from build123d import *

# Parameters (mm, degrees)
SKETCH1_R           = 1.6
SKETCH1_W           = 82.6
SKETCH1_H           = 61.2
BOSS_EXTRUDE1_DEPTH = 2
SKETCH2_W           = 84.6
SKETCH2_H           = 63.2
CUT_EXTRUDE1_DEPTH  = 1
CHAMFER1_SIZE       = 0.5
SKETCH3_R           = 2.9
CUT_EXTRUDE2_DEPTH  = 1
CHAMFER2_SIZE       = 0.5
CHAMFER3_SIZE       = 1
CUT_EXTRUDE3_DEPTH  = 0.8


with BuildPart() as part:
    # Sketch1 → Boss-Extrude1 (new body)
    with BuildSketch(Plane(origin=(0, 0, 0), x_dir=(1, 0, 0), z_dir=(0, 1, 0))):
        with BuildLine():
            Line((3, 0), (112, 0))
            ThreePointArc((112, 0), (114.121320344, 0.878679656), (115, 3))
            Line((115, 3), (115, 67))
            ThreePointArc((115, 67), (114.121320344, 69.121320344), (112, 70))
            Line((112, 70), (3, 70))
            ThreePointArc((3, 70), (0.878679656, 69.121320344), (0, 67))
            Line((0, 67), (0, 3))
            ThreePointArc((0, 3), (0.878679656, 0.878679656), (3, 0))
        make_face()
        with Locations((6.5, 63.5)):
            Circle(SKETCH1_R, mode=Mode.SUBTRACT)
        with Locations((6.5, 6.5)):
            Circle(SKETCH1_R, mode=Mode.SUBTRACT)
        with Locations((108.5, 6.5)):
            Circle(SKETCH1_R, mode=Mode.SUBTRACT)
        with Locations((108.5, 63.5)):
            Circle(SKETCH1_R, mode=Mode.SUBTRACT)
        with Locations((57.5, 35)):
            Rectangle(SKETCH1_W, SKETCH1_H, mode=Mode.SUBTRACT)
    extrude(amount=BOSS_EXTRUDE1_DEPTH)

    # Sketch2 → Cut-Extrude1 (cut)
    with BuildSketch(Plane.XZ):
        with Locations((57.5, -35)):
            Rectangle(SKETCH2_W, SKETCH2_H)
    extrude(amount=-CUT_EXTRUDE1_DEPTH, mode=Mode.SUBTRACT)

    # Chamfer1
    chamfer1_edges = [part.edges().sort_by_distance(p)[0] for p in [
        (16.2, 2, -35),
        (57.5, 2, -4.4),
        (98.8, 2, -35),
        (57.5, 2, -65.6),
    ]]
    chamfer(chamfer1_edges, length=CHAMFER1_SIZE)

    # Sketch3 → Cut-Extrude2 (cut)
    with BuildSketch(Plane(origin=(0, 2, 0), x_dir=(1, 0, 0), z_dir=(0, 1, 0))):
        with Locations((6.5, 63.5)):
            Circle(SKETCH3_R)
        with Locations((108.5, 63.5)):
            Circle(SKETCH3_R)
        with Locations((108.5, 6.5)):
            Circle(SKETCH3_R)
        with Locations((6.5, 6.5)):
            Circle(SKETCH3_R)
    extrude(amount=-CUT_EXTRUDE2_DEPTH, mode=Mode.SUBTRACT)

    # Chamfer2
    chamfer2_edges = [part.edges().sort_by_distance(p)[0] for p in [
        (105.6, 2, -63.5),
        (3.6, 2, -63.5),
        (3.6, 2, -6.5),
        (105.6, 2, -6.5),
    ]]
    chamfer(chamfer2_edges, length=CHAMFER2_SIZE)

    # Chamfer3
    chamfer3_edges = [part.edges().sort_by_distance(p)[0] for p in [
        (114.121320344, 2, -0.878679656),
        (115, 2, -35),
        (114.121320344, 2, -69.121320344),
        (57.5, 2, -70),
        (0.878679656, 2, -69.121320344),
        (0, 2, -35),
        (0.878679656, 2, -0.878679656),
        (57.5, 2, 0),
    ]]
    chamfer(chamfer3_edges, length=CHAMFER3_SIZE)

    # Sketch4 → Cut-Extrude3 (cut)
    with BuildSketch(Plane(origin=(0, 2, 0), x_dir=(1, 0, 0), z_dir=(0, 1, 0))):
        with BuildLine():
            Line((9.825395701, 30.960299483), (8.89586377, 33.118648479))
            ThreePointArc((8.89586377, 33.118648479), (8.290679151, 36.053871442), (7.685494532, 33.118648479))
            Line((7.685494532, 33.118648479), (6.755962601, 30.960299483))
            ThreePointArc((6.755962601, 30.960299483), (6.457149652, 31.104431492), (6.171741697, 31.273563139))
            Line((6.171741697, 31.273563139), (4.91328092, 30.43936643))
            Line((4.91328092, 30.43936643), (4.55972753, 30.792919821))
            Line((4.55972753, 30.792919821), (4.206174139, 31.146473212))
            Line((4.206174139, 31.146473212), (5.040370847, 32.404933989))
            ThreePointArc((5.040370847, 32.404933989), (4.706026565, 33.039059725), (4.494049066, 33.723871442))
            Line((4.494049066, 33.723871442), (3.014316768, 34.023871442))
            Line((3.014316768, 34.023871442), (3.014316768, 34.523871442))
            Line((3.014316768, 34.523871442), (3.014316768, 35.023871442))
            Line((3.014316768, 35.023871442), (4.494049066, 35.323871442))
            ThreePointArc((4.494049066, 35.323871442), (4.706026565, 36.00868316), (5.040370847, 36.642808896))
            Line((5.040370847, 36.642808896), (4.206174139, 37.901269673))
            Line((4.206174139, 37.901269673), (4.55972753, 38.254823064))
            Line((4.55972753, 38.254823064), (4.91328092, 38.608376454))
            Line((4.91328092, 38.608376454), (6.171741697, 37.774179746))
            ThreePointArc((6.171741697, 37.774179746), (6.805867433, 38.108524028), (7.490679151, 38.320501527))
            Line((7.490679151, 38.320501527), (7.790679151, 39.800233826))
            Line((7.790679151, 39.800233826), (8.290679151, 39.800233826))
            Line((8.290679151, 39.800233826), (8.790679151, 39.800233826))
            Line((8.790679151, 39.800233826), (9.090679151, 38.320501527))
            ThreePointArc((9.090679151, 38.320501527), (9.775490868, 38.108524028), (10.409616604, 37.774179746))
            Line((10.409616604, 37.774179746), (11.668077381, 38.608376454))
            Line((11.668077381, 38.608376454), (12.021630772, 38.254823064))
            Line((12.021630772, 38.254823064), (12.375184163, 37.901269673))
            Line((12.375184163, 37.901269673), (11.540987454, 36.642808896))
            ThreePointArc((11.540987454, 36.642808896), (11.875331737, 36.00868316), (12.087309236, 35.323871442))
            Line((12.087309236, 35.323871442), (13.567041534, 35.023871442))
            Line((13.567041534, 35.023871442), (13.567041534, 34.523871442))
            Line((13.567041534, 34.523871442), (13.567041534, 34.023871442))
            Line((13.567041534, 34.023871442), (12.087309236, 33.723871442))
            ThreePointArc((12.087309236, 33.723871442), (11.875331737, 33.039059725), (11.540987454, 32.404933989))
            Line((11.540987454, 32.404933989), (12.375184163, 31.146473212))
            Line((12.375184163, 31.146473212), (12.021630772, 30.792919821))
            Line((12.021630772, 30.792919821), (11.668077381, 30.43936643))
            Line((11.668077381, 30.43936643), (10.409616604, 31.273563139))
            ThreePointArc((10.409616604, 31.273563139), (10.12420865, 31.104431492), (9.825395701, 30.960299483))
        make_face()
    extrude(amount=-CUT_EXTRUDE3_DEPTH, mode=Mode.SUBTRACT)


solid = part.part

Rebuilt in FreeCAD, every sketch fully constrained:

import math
import FreeCAD as App
import Part
import Sketcher

V = App.Vector
Q = App.Units.Quantity


def edges_at(feature, points):
    """Names of the edges that pass closest to the given points."""
    edges = feature.Shape.Edges
    near = lambda p: min(range(len(edges)), key=lambda i: edges[i].distToShape(Part.Vertex(*p))[0])
    return sorted({f"Edge{near(p) + 1}" for p in points})

doc = App.newDocument("Part")
params = doc.addObject("Spreadsheet::Sheet", "Params")
for row, (alias, value) in enumerate([
    ("sketch1_radius", "3 mm"),
    ("sketch1_diameter", "3.2 mm"),
    ("sketch1_width", "109 mm"),
    ("sketch1_height", "64 mm"),
    ("sketch1_width2", "82.6 mm"),
    ("pad1_length", "2 mm"),
    ("sketch2_width", "84.6 mm"),
    ("sketch2_height", "63.2 mm"),
    ("pocket1_length", "1 mm"),
    ("chamfer_size", "0.5 mm"),
    ("sketch3_diameter", "5.8 mm"),
    ("pocket2_length", "1 mm"),
    ("chamfer2_size", "0.5 mm"),
    ("chamfer3_size", "1 mm"),
    ("sketch4_width", "1 mm"),
    ("sketch4_radius", "3.88 mm"),
    ("sketch4_radius2", "1.53 mm"),
    ("sketch4_length", "1 mm"),
    ("pocket3_length", "0.8 mm"),
], start=1):
    params.set(f"A{row}", alias)
    params.set(f"B{row}", "=" + value)
    params.setAlias(f"B{row}", alias)

body = doc.addObject("PartDesign::Body", "Body")

sketch1 = body.newObject("Sketcher::SketchObject", "Sketch")
sketch1.AttachmentSupport = (doc.getObject("XZ_Plane"), [""])
sketch1.MapMode = "FlatFace"
sketch1.addGeometry([
    Part.LineSegment(V(3, 0, 0), V(112, 0, 0)),
    Part.ArcOfCircle(Part.Circle(V(112, -3, 0), V(0, 0, 1), 3), math.radians(0), math.radians(90)),
    Part.LineSegment(V(115, -3, 0), V(115, -67, 0)),
    Part.ArcOfCircle(Part.Circle(V(112, -67, 0), V(0, 0, 1), 3), math.radians(-90), math.radians(0)),
    Part.LineSegment(V(112, -70, 0), V(3, -70, 0)),
    Part.ArcOfCircle(Part.Circle(V(3, -67, 0), V(0, 0, 1), 3), math.radians(180), math.radians(270)),
    Part.LineSegment(V(0, -67, 0), V(0, -3, 0)),
    Part.ArcOfCircle(Part.Circle(V(3, -3, 0), V(0, 0, 1), 3), math.radians(90), math.radians(180)),
    Part.Circle(V(6.5, -6.5, 0), V(0, 0, 1), 1.6),
    Part.Circle(V(108.5, -6.5, 0), V(0, 0, 1), 1.6),
    Part.Circle(V(6.5, -63.5, 0), V(0, 0, 1), 1.6),
    Part.LineSegment(V(98.8, -4.4, 0), V(16.2, -4.4, 0)),
    Part.LineSegment(V(16.2, -4.4, 0), V(16.2, -65.6, 0)),
    Part.LineSegment(V(16.2, -65.6, 0), V(98.8, -65.6, 0)),
    Part.LineSegment(V(98.8, -65.6, 0), V(98.8, -4.4, 0)),
    Part.Circle(V(108.5, -63.5, 0), V(0, 0, 1), 1.6),
], False)
sketch1.addConstraint([
    Sketcher.Constraint("Tangent", 0, 2, 1, 2),
    Sketcher.Constraint("Tangent", 1, 1, 2, 1),
    Sketcher.Constraint("Tangent", 2, 2, 3, 2),
    Sketcher.Constraint("Tangent", 3, 1, 4, 1),
    Sketcher.Constraint("Tangent", 4, 2, 5, 2),
    Sketcher.Constraint("Tangent", 5, 1, 6, 1),
    Sketcher.Constraint("Tangent", 6, 2, 7, 2),
    Sketcher.Constraint("Tangent", 7, 1, 0, 1),
    Sketcher.Constraint("Coincident", 11, 2, 12, 1),
    Sketcher.Constraint("Coincident", 12, 2, 13, 1),
    Sketcher.Constraint("Coincident", 13, 2, 14, 1),
    Sketcher.Constraint("Coincident", 14, 2, 11, 1),
    Sketcher.Constraint("Horizontal", 0),
    Sketcher.Constraint("Vertical", 2),
    Sketcher.Constraint("Horizontal", 4),
    Sketcher.Constraint("Vertical", 6),
    Sketcher.Constraint("Horizontal", 11),
    Sketcher.Constraint("Vertical", 12),
    Sketcher.Constraint("Horizontal", 13),
    Sketcher.Constraint("Vertical", 14),
    Sketcher.Constraint("Equal", 1, 3),
    Sketcher.Constraint("Equal", 3, 5),
    Sketcher.Constraint("Equal", 5, 7),
    Sketcher.Constraint("Equal", 8, 9),
    Sketcher.Constraint("Equal", 9, 10),
    Sketcher.Constraint("Equal", 10, 15),
    Sketcher.Constraint("PointOnObject", 0, 2, -1),
    Sketcher.Constraint("PointOnObject", 5, 1, -2),
    Sketcher.Constraint("Horizontal", 8, 3, 9, 3),
    Sketcher.Constraint("Horizontal", 10, 3, 15, 3),
    Sketcher.Constraint("Vertical", 8, 3, 10, 3),
    Sketcher.Constraint("Vertical", 9, 3, 15, 3),
    Sketcher.Constraint("Radius", 1, 3.0),
    Sketcher.Constraint("Diameter", 8, 3.2),
    Sketcher.Constraint("DistanceX", 0, 1, 0, 2, 109.0),
    Sketcher.Constraint("DistanceY", 2, 2, 2, 1, 64.0),
    Sketcher.Constraint("DistanceX", 11, 2, 11, 1, 82.6),
    Sketcher.Constraint("DistanceY", 12, 2, 12, 1, 61.2),
    Sketcher.Constraint("DistanceX", 8, 3, 9, 3, 102.0),
    Sketcher.Constraint("DistanceY", 10, 3, 8, 3, 57.0),
    Sketcher.Constraint("DistanceX", -1, 1, 8, 3, 6.5),
    Sketcher.Constraint("DistanceY", 8, 3, -1, 1, 6.5),
    Sketcher.Constraint("DistanceX", -1, 1, 11, 2, 16.2),
    Sketcher.Constraint("DistanceY", 11, 2, -1, 1, 4.4),
])
sketch1.setExpression("Constraints[32]", "Params.sketch1_radius")
sketch1.setExpression("Constraints[33]", "Params.sketch1_diameter")
sketch1.setExpression("Constraints[34]", "Params.sketch1_width")
sketch1.setExpression("Constraints[35]", "Params.sketch1_height")
sketch1.setExpression("Constraints[36]", "Params.sketch1_width2")
pad1 = body.newObject("PartDesign::Pad", "Pad")
pad1.Profile = sketch1
pad1.setExpression("Length", "Params.pad1_length")
pad1.Reversed = True

sketch2 = body.newObject("Sketcher::SketchObject", "Sketch001")
sketch2.AttachmentSupport = (doc.getObject("XZ_Plane"), [""])
sketch2.MapMode = "FlatFace"
sketch2.addGeometry([
    Part.LineSegment(V(15, -3, 0), V(15, -67, 0)),
    Part.LineSegment(V(15, -67, 0), V(100, -67, 0)),
    Part.LineSegment(V(100, -67, 0), V(100, -3, 0)),
    Part.LineSegment(V(100, -3, 0), V(15, -3, 0)),
], False)
sketch2.addConstraint([
    Sketcher.Constraint("Coincident", 0, 2, 1, 1),
    Sketcher.Constraint("Coincident", 1, 2, 2, 1),
    Sketcher.Constraint("Coincident", 2, 2, 3, 1),
    Sketcher.Constraint("Coincident", 3, 2, 0, 1),
    Sketcher.Constraint("Vertical", 0),
    Sketcher.Constraint("Horizontal", 1),
    Sketcher.Constraint("Vertical", 2),
    Sketcher.Constraint("Horizontal", 3),
    Sketcher.Constraint("DistanceX", 1, 1, 1, 2, 84.6),
    Sketcher.Constraint("DistanceY", 0, 2, 0, 1, 63.2),
    Sketcher.Constraint("DistanceX", -1, 1, 0, 2, 15.2),
    Sketcher.Constraint("DistanceY", 0, 2, -1, 1, 66.6),
])
sketch2.setExpression("Constraints[8]", "Params.sketch2_width")
sketch2.setExpression("Constraints[9]", "Params.sketch2_height")
pocket1 = body.newObject("PartDesign::Pocket", "Pocket")
pocket1.Profile = sketch2
pocket1.setExpression("Length", "Params.pocket1_length")
doc.recompute()

chamfer = body.newObject("PartDesign::Chamfer", "Chamfer")
chamfer.Base = (pocket1, edges_at(pocket1, [
    (16.2, 2, -35),
    (57.5, 2, -4.4),
    (98.8, 2, -35),
    (57.5, 2, -65.6),
]))
chamfer.setExpression("Size", "Params.chamfer_size")

sketch3 = body.newObject("Sketcher::SketchObject", "Sketch002")
sketch3.AttachmentSupport = (doc.getObject("XZ_Plane"), [""])
sketch3.MapMode = "FlatFace"
sketch3.AttachmentOffset = App.Placement(V(0, 0, -2), App.Rotation())
sketch3.addGeometry([
    Part.Circle(V(6.5, -63.5, 0), V(0, 0, 1), 2.9),
    Part.Circle(V(108.5, -63.5, 0), V(0, 0, 1), 2.9),
    Part.Circle(V(108.5, -6.5, 0), V(0, 0, 1), 2.9),
    Part.Circle(V(6.5, -6.5, 0), V(0, 0, 1), 2.9),
], False)
sketch3.addConstraint([
    Sketcher.Constraint("Equal", 0, 1),
    Sketcher.Constraint("Equal", 1, 2),
    Sketcher.Constraint("Equal", 2, 3),
    Sketcher.Constraint("Horizontal", 0, 3, 1, 3),
    Sketcher.Constraint("Horizontal", 2, 3, 3, 3),
    Sketcher.Constraint("Vertical", 1, 3, 2, 3),
    Sketcher.Constraint("Vertical", 0, 3, 3, 3),
    Sketcher.Constraint("Diameter", 0, 5.8),
    Sketcher.Constraint("DistanceX", 0, 3, 1, 3, 102.0),
    Sketcher.Constraint("DistanceY", 1, 3, 2, 3, 57.0),
    Sketcher.Constraint("DistanceX", -1, 1, 0, 3, 6.5),
    Sketcher.Constraint("DistanceY", 0, 3, -1, 1, 63.5),
])
sketch3.setExpression("Constraints[7]", "Params.sketch3_diameter")
pocket2 = body.newObject("PartDesign::Pocket", "Pocket001")
pocket2.Profile = sketch3
pocket2.setExpression("Length", "Params.pocket2_length")
pocket2.Reversed = True
doc.recompute()

chamfer2 = body.newObject("PartDesign::Chamfer", "Chamfer001")
chamfer2.Base = (pocket2, edges_at(pocket2, [
    (105.6, 2, -63.5),
    (3.6, 2, -63.5),
    (3.6, 2, -6.5),
    (105.6, 2, -6.5),
]))
chamfer2.setExpression("Size", "Params.chamfer2_size")
doc.recompute()

chamfer3 = body.newObject("PartDesign::Chamfer", "Chamfer002")
chamfer3.Base = (chamfer2, edges_at(chamfer2, [
    (114.121, 2, -0.879),
    (115, 2, -35),
    (114.121, 2, -69.121),
    (57.5, 2, -70),
    (0.879, 2, -69.121),
    (0, 2, -35),
    (0.879, 2, -0.879),
    (57.5, 2, 0),
]))
chamfer3.setExpression("Size", "Params.chamfer3_size")

sketch4 = body.newObject("Sketcher::SketchObject", "Sketch003")
sketch4.AttachmentSupport = (doc.getObject("XZ_Plane"), [""])
sketch4.MapMode = "FlatFace"
sketch4.AttachmentOffset = App.Placement(V(0, 0, -2), App.Rotation())
sketch4.addGeometry([
    Part.LineSegment(V(8.9, -33.12, 0), V(9.83, -30.96, 0)),
    Part.ArcOfCircle(Part.Circle(V(8.29, -34.52, 0), V(0, 0, 1), 3.88), math.radians(56.9), math.radians(66.7)),
    Part.LineSegment(V(10.41, -31.27, 0), V(11.67, -30.44, 0)),
    Part.LineSegment(V(11.67, -30.44, 0), V(12.38, -31.15, 0)),
    Part.LineSegment(V(12.38, -31.15, 0), V(11.54, -32.4, 0)),
    Part.ArcOfCircle(Part.Circle(V(8.29, -34.52, 0), V(0, 0, 1), 3.88), math.radians(12), math.radians(33)),
    Part.LineSegment(V(12.09, -33.72, 0), V(13.57, -34.02, 0)),
    Part.LineSegment(V(13.57, -34.02, 0), V(13.57, -35.02, 0)),
    Part.LineSegment(V(13.57, -35.02, 0), V(12.09, -35.32, 0)),
    Part.ArcOfCircle(Part.Circle(V(8.29, -34.52, 0), V(0, 0, 1), 3.88), math.radians(-33), math.radians(-12)),
    Part.LineSegment(V(11.54, -36.64, 0), V(12.38, -37.9, 0)),
    Part.LineSegment(V(12.38, -37.9, 0), V(12.02, -38.25, 0)),
    Part.LineSegment(V(12.02, -38.25, 0), V(11.67, -38.61, 0)),
    Part.LineSegment(V(11.67, -38.61, 0), V(10.41, -37.77, 0)),
    Part.ArcOfCircle(Part.Circle(V(8.29, -34.52, 0), V(0, 0, 1), 3.88), math.radians(-78), math.radians(-57)),
    Part.LineSegment(V(9.09, -38.32, 0), V(8.79, -39.8, 0)),
    Part.LineSegment(V(8.79, -39.8, 0), V(7.79, -39.8, 0)),
    Part.LineSegment(V(7.79, -39.8, 0), V(7.49, -38.32, 0)),
    Part.ArcOfCircle(Part.Circle(V(8.29, -34.52, 0), V(0, 0, 1), 3.88), math.radians(-123), math.radians(-102)),
    Part.LineSegment(V(6.17, -37.77, 0), V(4.91, -38.61, 0)),
    Part.LineSegment(V(4.91, -38.61, 0), V(4.21, -37.9, 0)),
    Part.LineSegment(V(4.21, -37.9, 0), V(5.04, -36.64, 0)),
    Part.ArcOfCircle(Part.Circle(V(8.29, -34.52, 0), V(0, 0, 1), 3.88), math.radians(-168), math.radians(-147)),
    Part.LineSegment(V(4.49, -35.32, 0), V(3.01, -35.02, 0)),
    Part.LineSegment(V(3.01, -35.02, 0), V(3.01, -34.02, 0)),
    Part.LineSegment(V(3.01, -34.02, 0), V(4.49, -33.72, 0)),
    Part.ArcOfCircle(Part.Circle(V(8.29, -34.52, 0), V(0, 0, 1), 3.88), math.radians(147), math.radians(168)),
    Part.LineSegment(V(5.04, -32.4, 0), V(4.21, -31.15, 0)),
    Part.LineSegment(V(4.21, -31.15, 0), V(4.56, -30.79, 0)),
    Part.LineSegment(V(4.56, -30.79, 0), V(4.91, -30.44, 0)),
    Part.LineSegment(V(4.91, -30.44, 0), V(6.17, -31.27, 0)),
    Part.ArcOfCircle(Part.Circle(V(8.29, -34.52, 0), V(0, 0, 1), 3.88), math.radians(113.3), math.radians(123.1)),
    Part.LineSegment(V(6.76, -30.96, 0), V(7.69, -33.12, 0)),
    Part.ArcOfCircle(Part.Circle(V(8.29, -34.52, 0), V(0, 0, 1), 1.53), math.radians(113), math.radians(427)),
], False)
sketch4.addConstraint([
    Sketcher.Constraint("Coincident", 0, 2, 1, 2),
    Sketcher.Constraint("Coincident", 1, 1, 2, 1),
    Sketcher.Constraint("Coincident", 2, 2, 3, 1),
    Sketcher.Constraint("Coincident", 3, 2, 4, 1),
    Sketcher.Constraint("Coincident", 4, 2, 5, 2),
    Sketcher.Constraint("Coincident", 5, 1, 6, 1),
    Sketcher.Constraint("Coincident", 6, 2, 7, 1),
    Sketcher.Constraint("Coincident", 7, 2, 8, 1),
    Sketcher.Constraint("Coincident", 8, 2, 9, 2),
    Sketcher.Constraint("Coincident", 9, 1, 10, 1),
    Sketcher.Constraint("Coincident", 10, 2, 11, 1),
    Sketcher.Constraint("Coincident", 11, 2, 12, 1),
    Sketcher.Constraint("Coincident", 12, 2, 13, 1),
    Sketcher.Constraint("Coincident", 13, 2, 14, 2),
    Sketcher.Constraint("Coincident", 14, 1, 15, 1),
    Sketcher.Constraint("Coincident", 15, 2, 16, 1),
    Sketcher.Constraint("Coincident", 16, 2, 17, 1),
    Sketcher.Constraint("Coincident", 17, 2, 18, 2),
    Sketcher.Constraint("Coincident", 18, 1, 19, 1),
    Sketcher.Constraint("Coincident", 19, 2, 20, 1),
    Sketcher.Constraint("Coincident", 20, 2, 21, 1),
    Sketcher.Constraint("Coincident", 21, 2, 22, 2),
    Sketcher.Constraint("Coincident", 22, 1, 23, 1),
    Sketcher.Constraint("Coincident", 23, 2, 24, 1),
    Sketcher.Constraint("Coincident", 24, 2, 25, 1),
    Sketcher.Constraint("Coincident", 25, 2, 26, 2),
    Sketcher.Constraint("Coincident", 26, 1, 27, 1),
    Sketcher.Constraint("Coincident", 27, 2, 28, 1),
    Sketcher.Constraint("Coincident", 28, 2, 29, 1),
    Sketcher.Constraint("Coincident", 29, 2, 30, 1),
    Sketcher.Constraint("Coincident", 30, 2, 31, 2),
    Sketcher.Constraint("Coincident", 31, 1, 32, 1),
    Sketcher.Constraint("Coincident", 32, 2, 33, 1),
    Sketcher.Constraint("Coincident", 33, 2, 0, 1),
    Sketcher.Constraint("Vertical", 7),
    Sketcher.Constraint("Horizontal", 16),
    Sketcher.Constraint("Vertical", 24),
    Sketcher.Constraint("Coincident", 5, 3, 1, 3),
    Sketcher.Constraint("Coincident", 9, 3, 1, 3),
    Sketcher.Constraint("Coincident", 14, 3, 1, 3),
    Sketcher.Constraint("Coincident", 18, 3, 1, 3),
    Sketcher.Constraint("Coincident", 22, 3, 1, 3),
    Sketcher.Constraint("Coincident", 26, 3, 1, 3),
    Sketcher.Constraint("Coincident", 31, 3, 1, 3),
    Sketcher.Constraint("Coincident", 33, 3, 1, 3),
    Sketcher.Constraint("Equal", 1, 5),
    Sketcher.Constraint("Equal", 5, 9),
    Sketcher.Constraint("Equal", 9, 14),
    Sketcher.Constraint("Equal", 14, 18),
    Sketcher.Constraint("Equal", 18, 22),
    Sketcher.Constraint("Equal", 22, 26),
    Sketcher.Constraint("Equal", 26, 31),
    Sketcher.Constraint("Perpendicular", 2, 10),
    Sketcher.Constraint("Perpendicular", 3, 11),
    Sketcher.Constraint("Parallel", 11, 12),
    Sketcher.Constraint("Perpendicular", 4, 13),
    Sketcher.Constraint("Perpendicular", 6, 15),
    Sketcher.Constraint("Perpendicular", 8, 17),
    Sketcher.Constraint("Perpendicular", 10, 19),
    Sketcher.Constraint("Perpendicular", 12, 20),
    Sketcher.Constraint("Perpendicular", 13, 21),
    Sketcher.Constraint("Perpendicular", 15, 23),
    Sketcher.Constraint("Perpendicular", 17, 25),
    Sketcher.Constraint("Perpendicular", 19, 27),
    Sketcher.Constraint("Perpendicular", 20, 28),
    Sketcher.Constraint("Parallel", 28, 29),
    Sketcher.Constraint("Perpendicular", 21, 30),
    Sketcher.Constraint("Horizontal", 14, 1, 17, 2),
    Sketcher.Constraint("Horizontal", 13, 2, 18, 1),
    Sketcher.Constraint("Horizontal", 12, 2, 19, 2),
    Sketcher.Constraint("Horizontal", 10, 2, 20, 2),
    Sketcher.Constraint("Horizontal", 9, 1, 21, 2),
    Sketcher.Constraint("Horizontal", 8, 2, 22, 1),
    Sketcher.Constraint("Horizontal", 7, 2, 23, 2),
    Sketcher.Constraint("Horizontal", 6, 2, 24, 2),
    Sketcher.Constraint("Horizontal", 5, 1, 25, 2),
    Sketcher.Constraint("Horizontal", 4, 2, 26, 1),
    Sketcher.Constraint("Horizontal", 3, 2, 27, 2),
    Sketcher.Constraint("Horizontal", 2, 2, 29, 2),
    Sketcher.Constraint("Horizontal", 0, 2, 31, 1),
    Sketcher.Constraint("Horizontal", 32, 2, 33, 2),
    Sketcher.Constraint("Vertical", 5, 1, 8, 2),
    Sketcher.Constraint("Vertical", 4, 2, 9, 1),
    Sketcher.Constraint("Vertical", 3, 2, 10, 2),
    Sketcher.Constraint("Vertical", 2, 2, 12, 2),
    Sketcher.Constraint("Vertical", 20, 2, 27, 2),
    Sketcher.Constraint("Equal", 16, 7),
    Sketcher.Constraint("Equal", 2, 4),
    Sketcher.Constraint("Equal", 4, 6),
    Sketcher.Constraint("Equal", 11, 12),
    Sketcher.Constraint("Equal", 13, 15),
    Sketcher.Constraint("Equal", 12, 28),
    Sketcher.Constraint("DistanceX", 16, 2, 16, 1, 1.0),
    Sketcher.Constraint("Radius", 1, 3.88),
    Sketcher.Constraint("Radius", 33, 1.53),
    Sketcher.Constraint("Distance", 3, 1.0),
    Sketcher.Constraint("Angle", 0, Q("66.7 deg")),
    Sketcher.Constraint("DistanceY", 6, 2, 5, 1, 0.3),
    Sketcher.Constraint("DistanceY", 0, 2, -1, 1, 30.960299),
    Sketcher.Constraint("DistanceY", 14, 1, -1, 1, 38.320502),
    Sketcher.Constraint("DistanceX", 18, 3, 2, 2, 3.377398),
    Sketcher.Constraint("DistanceX", -1, 1, 1, 3, 8.290679),
    Sketcher.Constraint("DistanceX", -1, 1, 6, 2, 13.567042),
])
sketch4.setExpression("Constraints[92]", "Params.sketch4_width")
sketch4.setExpression("Constraints[93]", "Params.sketch4_radius")
sketch4.setExpression("Constraints[94]", "Params.sketch4_radius2")
sketch4.setExpression("Constraints[95]", "Params.sketch4_length")
pocket3 = body.newObject("PartDesign::Pocket", "Pocket002")
pocket3.Profile = sketch4
pocket3.setExpression("Length", "Params.pocket3_length")
pocket3.Reversed = True

doc.recompute()
